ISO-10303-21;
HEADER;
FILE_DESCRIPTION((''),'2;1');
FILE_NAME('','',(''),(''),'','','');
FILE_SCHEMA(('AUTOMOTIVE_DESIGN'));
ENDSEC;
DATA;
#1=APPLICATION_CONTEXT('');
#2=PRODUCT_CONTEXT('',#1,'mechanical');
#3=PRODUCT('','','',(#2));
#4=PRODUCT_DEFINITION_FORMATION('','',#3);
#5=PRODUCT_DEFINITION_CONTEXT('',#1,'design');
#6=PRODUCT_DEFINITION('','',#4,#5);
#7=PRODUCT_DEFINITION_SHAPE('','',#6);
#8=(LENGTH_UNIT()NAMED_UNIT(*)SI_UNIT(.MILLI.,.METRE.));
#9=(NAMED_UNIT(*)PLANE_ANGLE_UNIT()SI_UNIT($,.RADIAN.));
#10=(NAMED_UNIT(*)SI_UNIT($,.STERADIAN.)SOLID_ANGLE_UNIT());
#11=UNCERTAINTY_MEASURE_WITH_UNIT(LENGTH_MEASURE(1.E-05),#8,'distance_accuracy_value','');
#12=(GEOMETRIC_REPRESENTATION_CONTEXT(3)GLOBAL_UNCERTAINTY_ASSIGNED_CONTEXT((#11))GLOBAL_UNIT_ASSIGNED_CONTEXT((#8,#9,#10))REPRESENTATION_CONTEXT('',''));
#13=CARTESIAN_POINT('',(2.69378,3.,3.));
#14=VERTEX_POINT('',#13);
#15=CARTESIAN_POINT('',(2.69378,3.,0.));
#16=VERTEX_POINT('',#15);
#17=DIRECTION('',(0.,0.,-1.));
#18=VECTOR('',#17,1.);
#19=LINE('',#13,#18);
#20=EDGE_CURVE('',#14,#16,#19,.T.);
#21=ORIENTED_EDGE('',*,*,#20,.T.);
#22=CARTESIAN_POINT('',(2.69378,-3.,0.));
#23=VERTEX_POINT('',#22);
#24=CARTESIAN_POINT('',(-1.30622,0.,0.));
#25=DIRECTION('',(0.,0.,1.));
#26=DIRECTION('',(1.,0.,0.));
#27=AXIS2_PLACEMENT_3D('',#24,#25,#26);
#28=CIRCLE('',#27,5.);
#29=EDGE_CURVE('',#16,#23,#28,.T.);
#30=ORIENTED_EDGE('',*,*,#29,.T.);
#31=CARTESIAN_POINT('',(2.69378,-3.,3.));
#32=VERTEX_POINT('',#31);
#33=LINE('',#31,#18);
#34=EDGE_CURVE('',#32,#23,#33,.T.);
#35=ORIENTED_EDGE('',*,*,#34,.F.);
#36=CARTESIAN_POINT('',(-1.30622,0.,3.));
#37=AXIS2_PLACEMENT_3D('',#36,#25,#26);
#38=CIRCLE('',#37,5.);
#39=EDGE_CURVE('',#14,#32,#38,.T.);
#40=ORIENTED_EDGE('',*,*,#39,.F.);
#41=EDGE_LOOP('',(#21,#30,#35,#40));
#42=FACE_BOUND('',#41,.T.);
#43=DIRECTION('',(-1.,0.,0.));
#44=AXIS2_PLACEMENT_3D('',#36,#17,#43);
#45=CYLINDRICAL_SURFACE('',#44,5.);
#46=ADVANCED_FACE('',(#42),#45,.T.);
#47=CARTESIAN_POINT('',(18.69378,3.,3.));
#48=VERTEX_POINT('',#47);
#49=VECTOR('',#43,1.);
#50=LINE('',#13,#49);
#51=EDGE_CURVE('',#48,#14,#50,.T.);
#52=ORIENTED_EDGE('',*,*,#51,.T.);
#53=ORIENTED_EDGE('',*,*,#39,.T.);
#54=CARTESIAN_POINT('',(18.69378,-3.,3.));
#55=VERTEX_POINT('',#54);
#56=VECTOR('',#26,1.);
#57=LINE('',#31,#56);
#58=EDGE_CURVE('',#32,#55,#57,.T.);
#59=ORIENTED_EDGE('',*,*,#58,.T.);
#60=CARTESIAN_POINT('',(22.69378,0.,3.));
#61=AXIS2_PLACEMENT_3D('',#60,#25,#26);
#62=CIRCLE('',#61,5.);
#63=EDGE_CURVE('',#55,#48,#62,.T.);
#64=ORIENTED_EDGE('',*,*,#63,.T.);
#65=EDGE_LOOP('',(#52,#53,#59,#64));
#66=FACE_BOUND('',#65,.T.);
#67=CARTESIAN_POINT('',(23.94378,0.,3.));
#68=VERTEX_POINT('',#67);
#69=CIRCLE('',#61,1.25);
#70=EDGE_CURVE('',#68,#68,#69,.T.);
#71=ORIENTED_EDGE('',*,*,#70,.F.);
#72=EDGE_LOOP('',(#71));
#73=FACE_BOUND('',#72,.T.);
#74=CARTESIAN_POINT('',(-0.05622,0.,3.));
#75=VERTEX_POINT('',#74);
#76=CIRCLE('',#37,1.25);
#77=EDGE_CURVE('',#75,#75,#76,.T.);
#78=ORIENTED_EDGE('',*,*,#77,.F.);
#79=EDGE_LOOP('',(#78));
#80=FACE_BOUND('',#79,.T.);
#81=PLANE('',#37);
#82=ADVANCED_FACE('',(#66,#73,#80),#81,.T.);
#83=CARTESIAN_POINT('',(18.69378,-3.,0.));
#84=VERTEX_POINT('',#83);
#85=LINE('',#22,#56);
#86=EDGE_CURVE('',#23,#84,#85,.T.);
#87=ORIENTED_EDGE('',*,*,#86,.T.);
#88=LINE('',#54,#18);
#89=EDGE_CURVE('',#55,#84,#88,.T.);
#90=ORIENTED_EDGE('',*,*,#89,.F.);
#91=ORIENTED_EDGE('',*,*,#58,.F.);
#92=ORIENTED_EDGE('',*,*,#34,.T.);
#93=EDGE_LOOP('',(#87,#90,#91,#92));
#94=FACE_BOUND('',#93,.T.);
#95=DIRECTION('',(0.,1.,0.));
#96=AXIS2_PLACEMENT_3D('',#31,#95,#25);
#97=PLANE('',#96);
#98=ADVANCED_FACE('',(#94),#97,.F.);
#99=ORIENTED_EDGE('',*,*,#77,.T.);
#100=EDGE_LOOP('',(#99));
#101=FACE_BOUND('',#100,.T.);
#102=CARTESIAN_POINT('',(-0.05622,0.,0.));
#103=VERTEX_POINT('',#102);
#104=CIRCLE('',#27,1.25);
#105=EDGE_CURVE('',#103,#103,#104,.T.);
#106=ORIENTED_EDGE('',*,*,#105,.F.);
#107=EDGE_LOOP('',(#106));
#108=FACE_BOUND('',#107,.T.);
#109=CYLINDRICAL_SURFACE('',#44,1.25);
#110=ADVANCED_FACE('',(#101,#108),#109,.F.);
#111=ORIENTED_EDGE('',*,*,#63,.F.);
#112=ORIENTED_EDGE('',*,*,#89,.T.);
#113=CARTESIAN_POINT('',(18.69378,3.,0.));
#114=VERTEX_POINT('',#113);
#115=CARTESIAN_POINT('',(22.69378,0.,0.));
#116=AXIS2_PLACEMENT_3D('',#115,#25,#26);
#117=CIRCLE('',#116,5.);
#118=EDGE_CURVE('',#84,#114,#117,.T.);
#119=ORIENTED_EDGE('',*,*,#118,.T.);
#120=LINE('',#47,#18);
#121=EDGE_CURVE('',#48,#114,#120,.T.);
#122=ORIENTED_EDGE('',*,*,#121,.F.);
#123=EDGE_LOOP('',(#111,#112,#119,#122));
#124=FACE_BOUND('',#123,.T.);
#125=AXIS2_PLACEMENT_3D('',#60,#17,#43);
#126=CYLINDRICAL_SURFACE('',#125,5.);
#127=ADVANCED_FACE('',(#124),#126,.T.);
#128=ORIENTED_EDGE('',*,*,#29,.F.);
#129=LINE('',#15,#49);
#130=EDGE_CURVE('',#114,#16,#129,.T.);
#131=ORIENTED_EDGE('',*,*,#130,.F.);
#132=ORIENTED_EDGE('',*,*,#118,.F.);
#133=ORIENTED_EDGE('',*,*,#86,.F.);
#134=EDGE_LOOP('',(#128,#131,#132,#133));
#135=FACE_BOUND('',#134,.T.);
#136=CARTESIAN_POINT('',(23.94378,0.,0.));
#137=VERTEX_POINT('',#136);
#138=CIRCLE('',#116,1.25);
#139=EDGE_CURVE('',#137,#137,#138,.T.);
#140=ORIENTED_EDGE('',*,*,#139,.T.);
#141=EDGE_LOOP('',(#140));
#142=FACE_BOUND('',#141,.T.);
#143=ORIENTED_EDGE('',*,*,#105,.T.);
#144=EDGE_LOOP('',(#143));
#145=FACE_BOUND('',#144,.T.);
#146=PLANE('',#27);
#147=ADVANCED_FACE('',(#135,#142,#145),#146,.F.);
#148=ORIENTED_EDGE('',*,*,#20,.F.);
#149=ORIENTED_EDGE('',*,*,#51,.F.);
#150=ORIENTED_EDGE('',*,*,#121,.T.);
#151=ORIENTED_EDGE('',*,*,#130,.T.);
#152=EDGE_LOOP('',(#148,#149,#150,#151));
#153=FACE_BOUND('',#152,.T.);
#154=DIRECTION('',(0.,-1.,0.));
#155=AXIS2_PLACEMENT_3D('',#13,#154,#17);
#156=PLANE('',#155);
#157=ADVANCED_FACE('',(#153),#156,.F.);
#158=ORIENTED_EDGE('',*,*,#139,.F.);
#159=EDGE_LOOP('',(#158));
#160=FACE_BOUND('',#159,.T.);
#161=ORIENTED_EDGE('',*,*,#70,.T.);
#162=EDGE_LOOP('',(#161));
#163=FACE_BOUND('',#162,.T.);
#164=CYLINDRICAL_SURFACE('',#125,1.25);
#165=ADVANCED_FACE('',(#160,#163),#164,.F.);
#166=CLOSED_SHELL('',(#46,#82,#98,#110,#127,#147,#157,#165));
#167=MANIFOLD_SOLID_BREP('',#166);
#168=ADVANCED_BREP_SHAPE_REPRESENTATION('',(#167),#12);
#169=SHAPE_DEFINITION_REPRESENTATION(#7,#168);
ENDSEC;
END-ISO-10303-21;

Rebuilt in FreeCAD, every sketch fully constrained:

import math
import FreeCAD as App
import Part
import Sketcher
Q = App.Units.Quantity

doc = App.newDocument("Part")
body = doc.addObject("PartDesign::Body", "Body")

# Sketch on XY plane
sketch1 = body.newObject("Sketcher::SketchObject", "Sketch")
sketch1.AttachmentSupport = (doc.getObject("XY_Plane"), [""])
sketch1.MapMode = "FlatFace"
sketch1.addGeometry([
    Part.LineSegment(App.Vector(18.7, 3, 0), App.Vector(2.7, 3, 0)),  # 0
    Part.ArcOfCircle(Part.Circle(App.Vector(-1.3, 0, 0), App.Vector(0, 0, 1), 5), math.radians(37), math.radians(323)),  # 1
    Part.LineSegment(App.Vector(2.7, -3, 0), App.Vector(18.7, -3, 0)),  # 2
    Part.ArcOfCircle(Part.Circle(App.Vector(22.7, 0, 0), App.Vector(0, 0, 1), 5), math.radians(-143), math.radians(143)),  # 3
    Part.Circle(App.Vector(22.7, 0, 0), App.Vector(0, 0, 1), 1.2),  # 4
    Part.Circle(App.Vector(-1.3, 0, 0), App.Vector(0, 0, 1), 1.2),  # 5
], False)
sketch1.addConstraint([
    Sketcher.Constraint("Coincident", 0, 2, 1, 1),
    Sketcher.Constraint("Coincident", 1, 2, 2, 1),
    Sketcher.Constraint("Coincident", 2, 2, 3, 1),
    Sketcher.Constraint("Coincident", 3, 2, 0, 1),
    Sketcher.Constraint("Horizontal", 0),
    Sketcher.Constraint("Horizontal", 2),
    Sketcher.Constraint("Coincident", 4, 3, 3, 3),
    Sketcher.Constraint("Coincident", 5, 3, 1, 3),
    Sketcher.Constraint("Equal", 1, 3),
    Sketcher.Constraint("Equal", 4, 5),
    Sketcher.Constraint("Symmetric", 0, 2, 1, 2, -1),
    Sketcher.Constraint("PointOnObject", 3, 3, -1),
    Sketcher.Constraint("Radius", 1, Q("5 mm")),
    Sketcher.Constraint("Diameter", 4, Q("2.5 mm")),
    Sketcher.Constraint("DistanceX", 0, 2, 0, 1, Q("16 mm")),
    Sketcher.Constraint("DistanceY", -1, 1, 0, 2, Q("3 mm")),
    Sketcher.Constraint("DistanceX", 1, 3, -1, 1, Q("1.30622 mm")),
])
pad1 = body.newObject("PartDesign::Pad", "Pad")
pad1.Profile = sketch1
pad1.Length = 3

doc.recompute()
